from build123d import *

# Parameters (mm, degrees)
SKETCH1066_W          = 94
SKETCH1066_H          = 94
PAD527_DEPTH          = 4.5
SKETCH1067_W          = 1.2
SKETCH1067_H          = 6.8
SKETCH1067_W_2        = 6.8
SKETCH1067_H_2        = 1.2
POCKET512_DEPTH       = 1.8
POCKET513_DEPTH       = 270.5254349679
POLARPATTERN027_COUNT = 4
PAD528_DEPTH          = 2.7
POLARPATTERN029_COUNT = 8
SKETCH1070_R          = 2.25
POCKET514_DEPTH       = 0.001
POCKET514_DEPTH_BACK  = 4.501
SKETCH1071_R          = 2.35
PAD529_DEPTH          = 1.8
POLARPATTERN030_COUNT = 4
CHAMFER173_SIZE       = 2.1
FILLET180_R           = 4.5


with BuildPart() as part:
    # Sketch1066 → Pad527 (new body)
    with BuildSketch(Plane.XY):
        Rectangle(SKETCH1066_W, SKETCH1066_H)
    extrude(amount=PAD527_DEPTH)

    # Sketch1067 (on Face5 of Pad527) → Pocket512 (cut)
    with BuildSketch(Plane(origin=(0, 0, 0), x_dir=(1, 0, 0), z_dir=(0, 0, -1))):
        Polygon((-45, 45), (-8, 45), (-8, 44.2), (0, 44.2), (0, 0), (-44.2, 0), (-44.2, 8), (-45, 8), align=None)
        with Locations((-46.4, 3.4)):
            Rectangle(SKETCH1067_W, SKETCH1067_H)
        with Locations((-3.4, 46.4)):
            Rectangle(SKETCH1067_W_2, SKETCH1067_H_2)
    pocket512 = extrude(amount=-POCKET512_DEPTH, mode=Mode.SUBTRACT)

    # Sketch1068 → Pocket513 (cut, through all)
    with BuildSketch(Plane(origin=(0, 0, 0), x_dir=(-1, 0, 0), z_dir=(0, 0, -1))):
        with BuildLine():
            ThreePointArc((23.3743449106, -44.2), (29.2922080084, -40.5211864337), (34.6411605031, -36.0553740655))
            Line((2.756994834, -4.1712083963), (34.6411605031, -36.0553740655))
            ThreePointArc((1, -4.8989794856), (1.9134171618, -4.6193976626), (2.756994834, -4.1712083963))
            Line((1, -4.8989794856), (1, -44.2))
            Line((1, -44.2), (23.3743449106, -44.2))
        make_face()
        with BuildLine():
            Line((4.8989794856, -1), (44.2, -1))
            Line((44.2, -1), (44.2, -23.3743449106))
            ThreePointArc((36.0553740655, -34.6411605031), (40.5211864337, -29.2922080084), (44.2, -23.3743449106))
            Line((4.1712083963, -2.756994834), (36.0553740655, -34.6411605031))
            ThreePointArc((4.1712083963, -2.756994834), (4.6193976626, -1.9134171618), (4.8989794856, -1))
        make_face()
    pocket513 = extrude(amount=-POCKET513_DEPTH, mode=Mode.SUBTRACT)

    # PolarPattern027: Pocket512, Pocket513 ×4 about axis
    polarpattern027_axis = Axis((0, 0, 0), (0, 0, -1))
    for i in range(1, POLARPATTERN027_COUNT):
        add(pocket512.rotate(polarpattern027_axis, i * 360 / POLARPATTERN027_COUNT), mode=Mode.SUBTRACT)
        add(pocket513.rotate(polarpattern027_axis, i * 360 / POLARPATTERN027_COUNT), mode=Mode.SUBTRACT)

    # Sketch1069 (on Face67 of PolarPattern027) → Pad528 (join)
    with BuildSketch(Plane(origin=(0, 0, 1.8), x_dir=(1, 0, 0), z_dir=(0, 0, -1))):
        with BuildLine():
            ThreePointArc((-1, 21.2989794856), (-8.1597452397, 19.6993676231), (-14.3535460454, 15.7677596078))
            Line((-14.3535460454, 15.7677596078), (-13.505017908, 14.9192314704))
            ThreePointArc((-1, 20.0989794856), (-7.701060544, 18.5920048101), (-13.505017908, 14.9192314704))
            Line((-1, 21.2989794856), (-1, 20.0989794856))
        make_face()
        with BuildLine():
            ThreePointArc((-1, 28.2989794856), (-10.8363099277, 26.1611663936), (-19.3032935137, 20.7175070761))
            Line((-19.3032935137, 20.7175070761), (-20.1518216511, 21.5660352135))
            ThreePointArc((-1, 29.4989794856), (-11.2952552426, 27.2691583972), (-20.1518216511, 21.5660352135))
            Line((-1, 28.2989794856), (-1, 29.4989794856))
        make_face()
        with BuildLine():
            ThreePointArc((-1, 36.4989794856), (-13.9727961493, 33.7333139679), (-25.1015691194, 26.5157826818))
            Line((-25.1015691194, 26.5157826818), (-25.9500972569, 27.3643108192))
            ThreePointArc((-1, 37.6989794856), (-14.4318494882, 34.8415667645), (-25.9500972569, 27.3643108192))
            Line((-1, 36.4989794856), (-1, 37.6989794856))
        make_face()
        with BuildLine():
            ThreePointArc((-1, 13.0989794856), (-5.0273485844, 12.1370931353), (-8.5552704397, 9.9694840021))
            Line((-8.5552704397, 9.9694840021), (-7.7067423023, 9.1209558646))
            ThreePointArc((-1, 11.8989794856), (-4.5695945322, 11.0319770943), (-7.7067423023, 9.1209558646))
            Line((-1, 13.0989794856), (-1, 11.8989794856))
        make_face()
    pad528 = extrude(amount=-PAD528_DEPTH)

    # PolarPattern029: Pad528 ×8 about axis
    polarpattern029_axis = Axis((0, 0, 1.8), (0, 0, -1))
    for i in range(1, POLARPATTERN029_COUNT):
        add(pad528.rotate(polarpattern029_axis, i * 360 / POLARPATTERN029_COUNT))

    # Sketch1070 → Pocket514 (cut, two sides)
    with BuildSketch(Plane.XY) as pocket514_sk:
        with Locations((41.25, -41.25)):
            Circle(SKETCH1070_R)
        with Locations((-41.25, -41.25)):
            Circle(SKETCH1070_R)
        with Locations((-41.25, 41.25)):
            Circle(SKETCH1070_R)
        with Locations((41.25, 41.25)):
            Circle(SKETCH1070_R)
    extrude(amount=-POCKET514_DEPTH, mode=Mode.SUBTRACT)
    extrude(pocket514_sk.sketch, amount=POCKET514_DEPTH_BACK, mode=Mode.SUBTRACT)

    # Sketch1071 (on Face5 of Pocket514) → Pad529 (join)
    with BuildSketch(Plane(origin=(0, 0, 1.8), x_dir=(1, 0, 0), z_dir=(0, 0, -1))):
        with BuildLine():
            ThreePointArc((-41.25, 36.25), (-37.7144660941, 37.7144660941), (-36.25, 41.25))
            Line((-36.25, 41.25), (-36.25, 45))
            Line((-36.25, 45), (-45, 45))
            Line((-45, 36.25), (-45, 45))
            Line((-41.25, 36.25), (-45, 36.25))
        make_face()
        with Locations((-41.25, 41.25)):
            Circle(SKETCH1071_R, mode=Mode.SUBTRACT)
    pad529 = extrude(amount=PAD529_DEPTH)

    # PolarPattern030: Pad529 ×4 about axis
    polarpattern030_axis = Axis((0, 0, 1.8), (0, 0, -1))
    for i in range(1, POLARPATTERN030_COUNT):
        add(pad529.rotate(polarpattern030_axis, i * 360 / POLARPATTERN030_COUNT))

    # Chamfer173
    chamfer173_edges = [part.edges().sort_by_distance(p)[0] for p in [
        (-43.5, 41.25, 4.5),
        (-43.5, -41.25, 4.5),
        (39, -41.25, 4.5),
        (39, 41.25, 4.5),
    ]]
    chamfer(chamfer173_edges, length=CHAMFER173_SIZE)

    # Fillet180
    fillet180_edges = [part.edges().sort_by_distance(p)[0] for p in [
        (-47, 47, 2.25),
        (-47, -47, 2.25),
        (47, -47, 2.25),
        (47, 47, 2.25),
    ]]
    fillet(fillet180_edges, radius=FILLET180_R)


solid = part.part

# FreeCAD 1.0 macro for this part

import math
import FreeCAD as App
import Part
import Sketcher

V = App.Vector
Q = App.Units.Quantity


def edges_at(feature, points):
    """Names of the edges that pass closest to the given points."""
    edges = feature.Shape.Edges
    near = lambda p: min(range(len(edges)), key=lambda i: edges[i].distToShape(Part.Vertex(*p))[0])
    return sorted({f"Edge{near(p) + 1}" for p in points})


def add_polygon(sketch, points):
    """Adds a closed chain of lines whose ends are joined by coincident constraints."""
    first, n = sketch.GeometryCount, len(points)
    for a, b in zip(points, points[1:] + points[:1]):
        sketch.addGeometry(Part.LineSegment(App.Vector(*a, 0), App.Vector(*b, 0)), False)
    for i in range(n):
        sketch.addConstraint(Sketcher.Constraint("Coincident", first + i, 2, first + (i + 1) % n, 1))

doc = App.newDocument("Part")
body = doc.addObject("PartDesign::Body", "Body")

# Sketch on XY plane
sketch1 = body.newObject("Sketcher::SketchObject", "Sketch")
sketch1.AttachmentSupport = (doc.getObject("XY_Plane"), [""])
sketch1.MapMode = "FlatFace"
add_polygon(sketch1, [(-47, 47), (-47, -47), (47, -47), (47, 47)])  # lines 0-3
sketch1.addConstraint([
    Sketcher.Constraint("Vertical", 0),
    Sketcher.Constraint("Horizontal", 1),
    Sketcher.Constraint("Vertical", 2),
    Sketcher.Constraint("Horizontal", 3),
    Sketcher.Constraint("Symmetric", 0, 2, 2, 2, -1, 1),
    Sketcher.Constraint("Equal", 3, 0),
    Sketcher.Constraint("DistanceX", 1, 1, 1, 2, Q("94 mm")),
])
pad1 = body.newObject("PartDesign::Pad", "Pad")
pad1.Profile = sketch1
pad1.Length = 4.5

# Sketch on XY plane
sketch2 = body.newObject("Sketcher::SketchObject", "Sketch001")
sketch2.AttachmentSupport = (doc.getObject("XY_Plane"), [""])
sketch2.MapMode = "FlatFace"
add_polygon(sketch2, [(-8, -45), (-45, -45), (-45, -8), (-44.2, -8), (-44.2, 0), (0, 0), (0, -44.2), (-8, -44.2)])  # lines 0-7
add_polygon(sketch2, [(-47, -6.8), (-47, 0), (-45.8, 0), (-45.8, -6.8)])  # lines 8-11
add_polygon(sketch2, [(-6.8, -47), (-6.8, -45.8), (0, -45.8), (0, -47)])  # lines 12-15
sketch2.addConstraint([
    Sketcher.Constraint("Horizontal", 0),
    Sketcher.Constraint("Vertical", 1),
    Sketcher.Constraint("Horizontal", 2),
    Sketcher.Constraint("Vertical", 3),
    Sketcher.Constraint("Horizontal", 4),
    Sketcher.Constraint("Vertical", 5),
    Sketcher.Constraint("Horizontal", 6),
    Sketcher.Constraint("Vertical", 7),
    Sketcher.Constraint("Vertical", 8),
    Sketcher.Constraint("Horizontal", 9),
    Sketcher.Constraint("Vertical", 10),
    Sketcher.Constraint("Horizontal", 11),
    Sketcher.Constraint("Vertical", 12),
    Sketcher.Constraint("Horizontal", 13),
    Sketcher.Constraint("Vertical", 14),
    Sketcher.Constraint("Horizontal", 15),
    Sketcher.Constraint("Coincident", 4, 2, -1, 1),
    Sketcher.Constraint("PointOnObject", 8, 2, -1),
    Sketcher.Constraint("PointOnObject", 13, 2, -2),
    Sketcher.Constraint("Equal", 0, 1),
    Sketcher.Constraint("Equal", 6, 3),
    Sketcher.Constraint("Equal", 4, 5),
    Sketcher.Constraint("Equal", 15, 8),
    Sketcher.Constraint("Equal", 11, 12),
    Sketcher.Constraint("DistanceX", 0, 2, 0, 1, Q("37 mm")),
    Sketcher.Constraint("DistanceX", 6, 2, 6, 1, Q("8 mm")),
    Sketcher.Constraint("DistanceX", 2, 1, 2, 2, Q("0.8 mm")),
    Sketcher.Constraint("DistanceX", 9, 1, 9, 2, Q("1.2 mm")),
    Sketcher.Constraint("DistanceX", 13, 1, 13, 2, Q("6.8 mm")),
    Sketcher.Constraint("DistanceX", 8, 2, -1, 1, Q("47 mm")),
    Sketcher.Constraint("DistanceY", 14, 2, -1, 1, Q("47 mm")),
])
pocket1 = body.newObject("PartDesign::Pocket", "Pocket")
pocket1.Profile = sketch2
pocket1.Length = 1.8
pocket1.Reversed = True

# Sketch on XY plane
sketch3 = body.newObject("Sketcher::SketchObject", "Sketch002")
sketch3.AttachmentSupport = (doc.getObject("XY_Plane"), [""])
sketch3.MapMode = "FlatFace"
sketch3.addGeometry([
    Part.ArcOfCircle(Part.Circle(V(0, 0, 0), V(0, 0, 1), 50), math.radians(-133.85), math.radians(-117.87)),  # 0
    Part.LineSegment(V(-34.6, -36.1, 0), V(-2.8, -4.2, 0)),  # 1
    Part.ArcOfCircle(Part.Circle(V(0, 0, 0), V(0, 0, 1), 5), math.radians(-123), math.radians(-102)),  # 2
    Part.LineSegment(V(-1, -4.9, 0), V(-1, -44.2, 0)),  # 3
    Part.LineSegment(V(-1, -44.2, 0), V(-23.4, -44.2, 0)),  # 4
    Part.LineSegment(V(-44.2, -1, 0), V(-4.9, -1, 0)),  # 5
    Part.ArcOfCircle(Part.Circle(V(0, 0, 0), V(0, 0, 1), 5), math.radians(-168), math.radians(-147)),  # 6
    Part.LineSegment(V(-4.2, -2.8, 0), V(-36.1, -34.6, 0)),  # 7
    Part.ArcOfCircle(Part.Circle(V(0, 0, 0), V(0, 0, 1), 50), math.radians(-152.13), math.radians(-136.15)),  # 8
    Part.LineSegment(V(-44.2, -23.4, 0), V(-44.2, -1, 0)),  # 9
], False)
sketch3.addConstraint([
    Sketcher.Constraint("Coincident", 0, 1, 1, 1),
    Sketcher.Constraint("Coincident", 1, 2, 2, 1),
    Sketcher.Constraint("Coincident", 2, 2, 3, 1),
    Sketcher.Constraint("Coincident", 3, 2, 4, 1),
    Sketcher.Constraint("Coincident", 4, 2, 0, 2),
    Sketcher.Constraint("Coincident", 5, 2, 6, 1),
    Sketcher.Constraint("Coincident", 6, 2, 7, 1),
    Sketcher.Constraint("Coincident", 7, 2, 8, 2),
    Sketcher.Constraint("Coincident", 8, 1, 9, 1),
    Sketcher.Constraint("Coincident", 9, 2, 5, 1),
    Sketcher.Constraint("Vertical", 3),
    Sketcher.Constraint("Horizontal", 4),
    Sketcher.Constraint("Horizontal", 5),
    Sketcher.Constraint("Vertical", 9),
    Sketcher.Constraint("Coincident", 0, 3, -1, 1),
    Sketcher.Constraint("Coincident", 2, 3, -1, 1),
    Sketcher.Constraint("Coincident", 6, 3, -1, 1),
    Sketcher.Constraint("Coincident", 8, 3, -1, 1),
    Sketcher.Constraint("Equal", 2, 6),
    Sketcher.Constraint("Equal", 0, 8),
    Sketcher.Constraint("Parallel", 1, 7),
    Sketcher.Constraint("Equal", 5, 3),
    Sketcher.Constraint("Equal", 4, 9),
    Sketcher.Constraint("Equal", 1, 7),
    Sketcher.Constraint("Radius", 0, Q("50 mm")),
    Sketcher.Constraint("Radius", 2, Q("5 mm")),
    Sketcher.Constraint("Angle", 1, Q("45 deg")),
    Sketcher.Constraint("DistanceX", 2, 2, -1, 1, Q("1 mm")),
    Sketcher.Constraint("DistanceY", 3, 2, -1, 1, Q("44.2 mm")),
    Sketcher.Constraint("Distance", 1, Q("45.09102 mm")),
])
pocket2 = body.newObject("PartDesign::Pocket", "Pocket001")
pocket2.Profile = sketch3
pocket2.Type = "ThroughAll"
pocket2.Reversed = True
doc.recompute()

polarpattern = body.newObject("PartDesign::PolarPattern", "PolarPattern")
polarpattern.Originals = [pocket1, pocket2]
polarpattern.Axis = (doc.getObject("Z_Axis"), [""])
polarpattern.Angle = 360
polarpattern.Occurrences = 4
body.Tip = polarpattern

# Sketch on XY plane
sketch4 = body.newObject("Sketcher::SketchObject", "Sketch003")
sketch4.AttachmentSupport = (doc.getObject("XY_Plane"), [""])
sketch4.MapMode = "FlatFace"
sketch4.AttachmentOffset = App.Placement(V(0, 0, 1.8), App.Rotation())
sketch4.addGeometry([
    Part.ArcOfCircle(Part.Circle(V(0, 0, 0), V(0, 0, 1), 21.322442), math.radians(-132.311902), math.radians(-92.688098)),  # 0
    Part.LineSegment(V(-14.353546, -15.76776, 0), V(-13.505018, -14.919231, 0)),  # 1
    Part.ArcOfCircle(Part.Circle(V(0, 0, 0), V(0, 0, 1), 20.123841), math.radians(-132.151668), math.radians(-92.848332)),  # 2
    Part.LineSegment(V(-1, -20.098979, 0), V(-1, -21.298979, 0)),  # 3
    Part.ArcOfCircle(Part.Circle(V(0, 0, 0), V(0, 0, 1), 28.316642), math.radians(-132.976183), math.radians(-92.023817)),  # 4
    Part.LineSegment(V(-1, -28.298979, 0), V(-1, -29.498979, 0)),  # 5
    Part.ArcOfCircle(Part.Circle(V(0, 0, 0), V(0, 0, 1), 29.515924), math.radians(-133.058446), math.radians(-91.941554)),  # 6
    Part.LineSegment(V(-20.151822, -21.566035, 0), V(-19.303294, -20.717507, 0)),  # 7
    Part.ArcOfCircle(Part.Circle(V(0, 0, 0), V(0, 0, 1), 36.512676), math.radians(-133.430601), math.radians(-91.569399)),  # 8
    Part.LineSegment(V(-1, -36.498979, 0), V(-1, -37.698979, 0)),  # 9
    Part.ArcOfCircle(Part.Circle(V(0, 0, 0), V(0, 0, 1), 37.71224), math.radians(-133.480533), math.radians(-91.519467)),  # 10
    Part.LineSegment(V(-25.950097, -27.364311, 0), V(-25.101569, -26.515783, 0)),  # 11
    Part.ArcOfCircle(Part.Circle(V(0, 0, 0), V(0, 0, 1), 13.137095), math.radians(-130.634403), math.radians(-94.365597)),  # 12
    Part.LineSegment(V(-8.55527, -9.969484, 0), V(-7.706742, -9.120956, 0)),  # 13
    Part.ArcOfCircle(Part.Circle(V(0, 0, 0), V(0, 0, 1), 11.940926), math.radians(-130.196104), math.radians(-94.803896)),  # 14
    Part.LineSegment(V(-1, -11.898979, 0), V(-1, -13.098979, 0)),  # 15
], False)
sketch4.addConstraint([
    Sketcher.Constraint("Coincident", 0, 1, 1, 1),
    Sketcher.Constraint("Coincident", 1, 2, 2, 1),
    Sketcher.Constraint("Coincident", 2, 2, 3, 1),
    Sketcher.Constraint("Coincident", 3, 2, 0, 2),
    Sketcher.Constraint("Coincident", 4, 2, 5, 1),
    Sketcher.Constraint("Coincident", 5, 2, 6, 2),
    Sketcher.Constraint("Coincident", 6, 1, 7, 1),
    Sketcher.Constraint("Coincident", 7, 2, 4, 1),
    Sketcher.Constraint("Coincident", 8, 2, 9, 1),
    Sketcher.Constraint("Coincident", 9, 2, 10, 2),
    Sketcher.Constraint("Coincident", 10, 1, 11, 1),
    Sketcher.Constraint("Coincident", 11, 2, 8, 1),
    Sketcher.Constraint("Coincident", 12, 1, 13, 1),
    Sketcher.Constraint("Coincident", 13, 2, 14, 1),
    Sketcher.Constraint("Coincident", 14, 2, 15, 1),
    Sketcher.Constraint("Coincident", 15, 2, 12, 2),
    Sketcher.Constraint("Vertical", 3),
    Sketcher.Constraint("Vertical", 5),
    Sketcher.Constraint("Vertical", 9),
    Sketcher.Constraint("Vertical", 15),
    Sketcher.Constraint("Coincident", 0, 3, -1, 1),
    Sketcher.Constraint("Coincident", 2, 3, -1, 1),
    Sketcher.Constraint("Coincident", 4, 3, -1, 1),
    Sketcher.Constraint("Coincident", 6, 3, -1, 1),
    Sketcher.Constraint("Coincident", 8, 3, -1, 1),
    Sketcher.Constraint("Coincident", 10, 3, -1, 1),
    Sketcher.Constraint("Coincident", 12, 3, -1, 1),
    Sketcher.Constraint("Coincident", 14, 3, -1, 1),
    Sketcher.Constraint("Parallel", 1, 7),
    Sketcher.Constraint("Parallel", 7, 11),
    Sketcher.Constraint("Parallel", 11, 13),
    Sketcher.Constraint("Vertical", 3, 2, 4, 2),
    Sketcher.Constraint("Vertical", 5, 2, 8, 2),
    Sketcher.Constraint("Vertical", 9, 2, 14, 2),
    Sketcher.Constraint("Equal", 3, 5),
    Sketcher.Constraint("Equal", 5, 9),
    Sketcher.Constraint("Equal", 9, 15),
    Sketcher.Constraint("Equal", 1, 7),
    Sketcher.Constraint("Equal", 11, 13),
    Sketcher.Constraint("Angle", 1, Q("45 deg")),
    Sketcher.Constraint("DistanceY", 3, 2, 3, 1, Q("1.2 mm")),
    Sketcher.Constraint("DistanceX", 2, 2, -1, 1, Q("1 mm")),
    Sketcher.Constraint("DistanceY", 4, 2, 3, 2, Q("7 mm")),
    Sketcher.Constraint("DistanceY", 8, 2, 5, 2, Q("7 mm")),
    Sketcher.Constraint("DistanceY", 2, 2, 15, 2, Q("7 mm")),
    Sketcher.Constraint("Radius", 0, Q("21.322442 mm")),
    Sketcher.Constraint("DistanceY", 0, 1, -1, 1, Q("15.76776 mm")),
    Sketcher.Constraint("DistanceY", 10, 1, -1, 1, Q("27.364311 mm")),
])
pad2 = body.newObject("PartDesign::Pad", "Pad001")
pad2.Profile = sketch4
pad2.Length = 2.7
doc.recompute()

polarpattern2 = body.newObject("PartDesign::PolarPattern", "PolarPattern001")
polarpattern2.Originals = [pad2]
polarpattern2.Axis = (doc.getObject("Z_Axis"), [""])
polarpattern2.Angle = 360
polarpattern2.Occurrences = 8
body.Tip = polarpattern2

# Sketch on XY plane
sketch5 = body.newObject("Sketcher::SketchObject", "Sketch004")
sketch5.AttachmentSupport = (doc.getObject("XY_Plane"), [""])
sketch5.MapMode = "FlatFace"
sketch5.addGeometry([
    Part.Circle(V(41.2, -41.2, 0), V(0, 0, 1), 2.2),
    Part.Circle(V(-41.2, -41.2, 0), V(0, 0, 1), 2.2),
    Part.Circle(V(-41.2, 41.2, 0), V(0, 0, 1), 2.2),
    Part.Circle(V(41.2, 41.2, 0), V(0, 0, 1), 2.2),
], False)
sketch5.addConstraint([
    Sketcher.Constraint("Equal", 0, 1),
    Sketcher.Constraint("Equal", 1, 2),
    Sketcher.Constraint("Equal", 2, 3),
    Sketcher.Constraint("Symmetric", 0, 3, 2, 3, -1, 1),
    Sketcher.Constraint("Symmetric", 1, 3, 3, 3, -1, 1),
    Sketcher.Constraint("Symmetric", 0, 3, 1, 3, -2),
    Sketcher.Constraint("Diameter", 0, Q("4.5 mm")),
    Sketcher.Constraint("DistanceX", 1, 3, 0, 3, Q("82.5 mm")),
    Sketcher.Constraint("DistanceY", 1, 3, 2, 3, Q("82.5 mm")),
])
pocket3 = body.newObject("PartDesign::Pocket", "Pocket002")
pocket3.Profile = sketch5
pocket3.Type = "ThroughAll"
pocket3.Midplane = True

# Sketch on XY plane
sketch6 = body.newObject("Sketcher::SketchObject", "Sketch005")
sketch6.AttachmentSupport = (doc.getObject("XY_Plane"), [""])
sketch6.MapMode = "FlatFace"
sketch6.AttachmentOffset = App.Placement(V(0, 0, 1.8), App.Rotation())
sketch6.addGeometry([
    Part.ArcOfCircle(Part.Circle(V(-41.2, -41.2, 0), V(0, 0, 1), 5), math.radians(0), math.radians(90)),  # 0
    Part.LineSegment(V(-36.2, -41.2, 0), V(-36.2, -45, 0)),  # 1
    Part.LineSegment(V(-36.2, -45, 0), V(-45, -45, 0)),  # 2
    Part.LineSegment(V(-45, -45, 0), V(-45, -36.2, 0)),  # 3
    Part.LineSegment(V(-45, -36.2, 0), V(-41.2, -36.2, 0)),  # 4
    Part.Circle(V(-41.2, -41.2, 0), V(0, 0, 1), 2.4),  # 5
], False)
sketch6.addConstraint([
    Sketcher.Constraint("Tangent", 0, 1, 1, 1),
    Sketcher.Constraint("Coincident", 1, 2, 2, 1),
    Sketcher.Constraint("Coincident", 2, 2, 3, 1),
    Sketcher.Constraint("Coincident", 3, 2, 4, 1),
    Sketcher.Constraint("Tangent", 4, 2, 0, 2),
    Sketcher.Constraint("Vertical", 1),
    Sketcher.Constraint("Horizontal", 2),
    Sketcher.Constraint("Vertical", 3),
    Sketcher.Constraint("Horizontal", 4),
    Sketcher.Constraint("Coincident", 5, 3, 0, 3),
    Sketcher.Constraint("Equal", 4, 1),
    Sketcher.Constraint("Radius", 0, Q("5 mm")),
    Sketcher.Constraint("Diameter", 5, Q("4.7 mm")),
    Sketcher.Constraint("DistanceY", 1, 2, -1, 1, Q("45 mm")),
    Sketcher.Constraint("DistanceX", 2, 2, -1, 1, Q("45 mm")),
    Sketcher.Constraint("DistanceX", 2, 2, 2, 1, Q("8.75 mm")),
])
pad3 = body.newObject("PartDesign::Pad", "Pad002")
pad3.Profile = sketch6
pad3.Length = 1.8
pad3.Reversed = True
doc.recompute()

polarpattern3 = body.newObject("PartDesign::PolarPattern", "PolarPattern002")
polarpattern3.Originals = [pad3]
polarpattern3.Axis = (doc.getObject("Z_Axis"), [""])
polarpattern3.Angle = 360
polarpattern3.Occurrences = 4
body.Tip = polarpattern3
doc.recompute()

chamfer = body.newObject("PartDesign::Chamfer", "Chamfer")
chamfer.Base = (polarpattern3, edges_at(polarpattern3, [
    (-43.5, 41.25, 4.5),
    (-43.5, -41.25, 4.5),
    (39, -41.25, 4.5),
    (39, 41.25, 4.5),
]))
chamfer.Size = 2.1
doc.recompute()

fillet = body.newObject("PartDesign::Fillet", "Fillet")
fillet.Base = (chamfer, edges_at(chamfer, [
    (-47, 47, 2.25),
    (-47, -47, 2.25),
    (47, -47, 2.25),
    (47, 47, 2.25),
]))
fillet.Radius = 4.5

doc.recompute()
